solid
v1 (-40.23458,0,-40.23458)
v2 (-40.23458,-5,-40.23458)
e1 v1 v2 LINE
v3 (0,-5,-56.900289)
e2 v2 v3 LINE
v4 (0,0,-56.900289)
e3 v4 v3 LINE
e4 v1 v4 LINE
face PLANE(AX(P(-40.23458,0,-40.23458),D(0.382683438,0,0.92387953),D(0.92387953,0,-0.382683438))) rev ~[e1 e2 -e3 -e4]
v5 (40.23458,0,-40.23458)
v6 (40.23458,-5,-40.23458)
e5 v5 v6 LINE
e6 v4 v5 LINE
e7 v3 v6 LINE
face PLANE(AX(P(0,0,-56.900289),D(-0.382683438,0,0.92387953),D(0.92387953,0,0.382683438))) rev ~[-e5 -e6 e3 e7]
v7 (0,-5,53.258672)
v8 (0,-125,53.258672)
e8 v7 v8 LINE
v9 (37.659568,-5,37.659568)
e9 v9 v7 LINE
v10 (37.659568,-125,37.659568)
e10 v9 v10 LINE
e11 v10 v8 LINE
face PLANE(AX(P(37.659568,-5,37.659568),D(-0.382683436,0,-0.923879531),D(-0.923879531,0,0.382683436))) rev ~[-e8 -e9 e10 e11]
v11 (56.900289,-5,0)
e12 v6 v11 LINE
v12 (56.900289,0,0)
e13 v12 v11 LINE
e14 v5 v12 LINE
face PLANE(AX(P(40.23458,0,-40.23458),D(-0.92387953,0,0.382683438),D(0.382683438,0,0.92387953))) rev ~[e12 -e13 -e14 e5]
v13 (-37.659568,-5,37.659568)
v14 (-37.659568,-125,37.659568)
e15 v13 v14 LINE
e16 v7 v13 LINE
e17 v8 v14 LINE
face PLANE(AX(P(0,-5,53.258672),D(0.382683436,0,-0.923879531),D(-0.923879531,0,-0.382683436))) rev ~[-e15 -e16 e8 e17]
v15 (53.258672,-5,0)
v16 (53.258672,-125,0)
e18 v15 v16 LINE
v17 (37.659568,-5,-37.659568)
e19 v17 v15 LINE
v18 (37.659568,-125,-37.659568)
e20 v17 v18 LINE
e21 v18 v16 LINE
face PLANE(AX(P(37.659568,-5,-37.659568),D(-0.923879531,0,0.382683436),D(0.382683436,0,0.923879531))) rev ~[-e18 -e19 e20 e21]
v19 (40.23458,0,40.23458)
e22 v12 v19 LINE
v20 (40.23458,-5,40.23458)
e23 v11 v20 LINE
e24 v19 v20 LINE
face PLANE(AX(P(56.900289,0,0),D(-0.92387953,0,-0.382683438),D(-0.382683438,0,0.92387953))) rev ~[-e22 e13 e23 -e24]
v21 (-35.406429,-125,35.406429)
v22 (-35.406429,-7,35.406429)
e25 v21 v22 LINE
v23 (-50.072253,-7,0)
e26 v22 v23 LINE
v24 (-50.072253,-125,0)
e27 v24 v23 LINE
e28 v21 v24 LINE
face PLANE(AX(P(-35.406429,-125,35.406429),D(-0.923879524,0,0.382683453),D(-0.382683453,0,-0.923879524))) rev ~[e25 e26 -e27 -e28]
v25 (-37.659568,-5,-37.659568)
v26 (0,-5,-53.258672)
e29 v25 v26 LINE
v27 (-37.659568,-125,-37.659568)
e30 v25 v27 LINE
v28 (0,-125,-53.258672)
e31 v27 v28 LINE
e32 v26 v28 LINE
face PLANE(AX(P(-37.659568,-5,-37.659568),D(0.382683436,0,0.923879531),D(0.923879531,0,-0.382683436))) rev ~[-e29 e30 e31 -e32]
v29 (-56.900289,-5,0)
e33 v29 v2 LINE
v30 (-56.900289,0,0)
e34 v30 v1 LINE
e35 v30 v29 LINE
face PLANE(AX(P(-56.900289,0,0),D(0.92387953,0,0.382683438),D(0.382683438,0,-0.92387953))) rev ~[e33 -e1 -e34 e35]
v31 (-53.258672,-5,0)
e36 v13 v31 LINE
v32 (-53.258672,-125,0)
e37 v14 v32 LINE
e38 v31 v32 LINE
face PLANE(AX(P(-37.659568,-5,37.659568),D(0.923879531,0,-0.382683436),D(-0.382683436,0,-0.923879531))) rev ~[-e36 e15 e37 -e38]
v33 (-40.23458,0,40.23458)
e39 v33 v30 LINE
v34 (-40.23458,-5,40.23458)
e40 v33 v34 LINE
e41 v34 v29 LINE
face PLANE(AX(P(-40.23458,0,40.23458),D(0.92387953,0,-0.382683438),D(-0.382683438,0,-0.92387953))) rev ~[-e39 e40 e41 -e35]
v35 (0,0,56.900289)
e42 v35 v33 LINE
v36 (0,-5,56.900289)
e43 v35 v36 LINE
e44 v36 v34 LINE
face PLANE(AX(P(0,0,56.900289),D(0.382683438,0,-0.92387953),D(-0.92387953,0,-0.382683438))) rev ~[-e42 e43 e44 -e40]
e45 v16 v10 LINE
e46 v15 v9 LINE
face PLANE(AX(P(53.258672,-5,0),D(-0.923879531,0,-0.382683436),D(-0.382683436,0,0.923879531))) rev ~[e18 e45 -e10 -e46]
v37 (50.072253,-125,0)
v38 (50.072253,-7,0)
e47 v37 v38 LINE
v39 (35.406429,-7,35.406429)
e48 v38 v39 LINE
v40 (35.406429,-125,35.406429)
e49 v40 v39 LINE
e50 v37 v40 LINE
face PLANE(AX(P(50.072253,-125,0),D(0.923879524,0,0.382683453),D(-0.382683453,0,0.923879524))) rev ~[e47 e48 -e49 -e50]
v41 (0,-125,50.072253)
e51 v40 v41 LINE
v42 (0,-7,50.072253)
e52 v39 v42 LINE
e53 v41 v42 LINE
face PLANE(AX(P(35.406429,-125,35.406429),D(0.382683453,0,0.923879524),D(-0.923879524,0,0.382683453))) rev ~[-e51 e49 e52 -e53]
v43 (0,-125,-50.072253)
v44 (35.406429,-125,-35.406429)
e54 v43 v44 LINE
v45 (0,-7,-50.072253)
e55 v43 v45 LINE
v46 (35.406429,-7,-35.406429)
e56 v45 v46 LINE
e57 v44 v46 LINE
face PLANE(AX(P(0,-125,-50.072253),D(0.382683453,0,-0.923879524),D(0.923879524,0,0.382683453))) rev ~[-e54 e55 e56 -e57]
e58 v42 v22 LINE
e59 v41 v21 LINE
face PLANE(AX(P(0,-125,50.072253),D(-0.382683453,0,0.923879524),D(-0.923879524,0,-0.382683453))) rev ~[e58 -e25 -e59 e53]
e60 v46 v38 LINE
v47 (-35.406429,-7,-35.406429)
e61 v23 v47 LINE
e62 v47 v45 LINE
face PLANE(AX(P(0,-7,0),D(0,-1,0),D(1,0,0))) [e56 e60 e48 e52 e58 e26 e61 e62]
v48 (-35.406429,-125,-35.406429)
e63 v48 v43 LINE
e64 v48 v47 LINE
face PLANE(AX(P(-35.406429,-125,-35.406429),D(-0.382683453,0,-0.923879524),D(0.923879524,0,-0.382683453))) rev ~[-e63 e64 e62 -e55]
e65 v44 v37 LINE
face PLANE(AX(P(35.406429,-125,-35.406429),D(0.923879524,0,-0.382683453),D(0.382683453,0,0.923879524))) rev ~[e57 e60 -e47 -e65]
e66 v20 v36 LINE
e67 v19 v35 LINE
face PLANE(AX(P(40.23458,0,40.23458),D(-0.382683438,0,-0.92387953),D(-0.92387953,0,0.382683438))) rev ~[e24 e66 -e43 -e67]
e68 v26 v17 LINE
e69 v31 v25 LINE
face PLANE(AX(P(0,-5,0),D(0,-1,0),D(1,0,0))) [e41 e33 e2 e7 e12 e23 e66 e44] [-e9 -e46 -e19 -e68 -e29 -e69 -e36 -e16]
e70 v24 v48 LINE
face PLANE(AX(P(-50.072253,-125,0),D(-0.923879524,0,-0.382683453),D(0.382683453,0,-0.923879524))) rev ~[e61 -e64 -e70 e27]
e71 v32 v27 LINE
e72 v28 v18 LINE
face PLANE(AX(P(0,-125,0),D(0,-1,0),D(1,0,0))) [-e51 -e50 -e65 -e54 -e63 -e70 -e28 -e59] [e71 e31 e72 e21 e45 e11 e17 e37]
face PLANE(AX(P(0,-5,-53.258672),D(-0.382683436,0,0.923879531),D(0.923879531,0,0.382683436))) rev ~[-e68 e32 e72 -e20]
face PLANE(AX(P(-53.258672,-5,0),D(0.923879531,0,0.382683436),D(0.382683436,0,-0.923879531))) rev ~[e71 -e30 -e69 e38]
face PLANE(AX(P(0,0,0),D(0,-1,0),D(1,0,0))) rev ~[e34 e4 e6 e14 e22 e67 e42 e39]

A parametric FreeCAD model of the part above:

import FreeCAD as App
import Part
import Sketcher
from FreeCAD import Vector
Q = App.Units.Quantity

doc = App.newDocument("Part")
body = doc.addObject("PartDesign::Body", "Body")

# Sketch on XZ plane
sketch1 = doc.addObject("Sketcher::SketchObject", "Sketch")
body.addObject(sketch1)
sketch1.AttachmentSupport = (doc.XZ_Plane, [""])
sketch1.MapMode = "FlatFace"
sketch1.addGeometry([
    Part.LineSegment(Vector(40.23458, -40.23458, 0), Vector(56.900289, 0, 0)),  # 0
    Part.LineSegment(Vector(56.900289, 0, 0), Vector(40.23458, 40.23458, 0)),  # 1
    Part.LineSegment(Vector(40.23458, 40.23458, 0), Vector(0, 56.900289, 0)),  # 2
    Part.LineSegment(Vector(0, 56.900289, 0), Vector(-40.23458, 40.23458, 0)),  # 3
    Part.LineSegment(Vector(-40.23458, 40.23458, 0), Vector(-56.900289, 0, 0)),  # 4
    Part.LineSegment(Vector(-56.900289, 0, 0), Vector(-40.23458, -40.23458, 0)),  # 5
    Part.LineSegment(Vector(-40.23458, -40.23458, 0), Vector(0, -56.900289, 0)),  # 6
    Part.LineSegment(Vector(0, -56.900289, 0), Vector(40.23458, -40.23458, 0)),  # 7
], False)
sketch1.addConstraint([
    Sketcher.Constraint("Coincident", 0, 2, 1, 1),
    Sketcher.Constraint("Coincident", 1, 2, 2, 1),
    Sketcher.Constraint("Coincident", 2, 2, 3, 1),
    Sketcher.Constraint("Coincident", 3, 2, 4, 1),
    Sketcher.Constraint("Coincident", 4, 2, 5, 1),
    Sketcher.Constraint("Coincident", 5, 2, 6, 1),
    Sketcher.Constraint("Coincident", 6, 2, 7, 1),
    Sketcher.Constraint("Coincident", 7, 2, 0, 1),
    Sketcher.Constraint("Symmetric", 0, 2, 4, 2, -1, 1),
    Sketcher.Constraint("Symmetric", 1, 2, 5, 2, -1, 1),
    Sketcher.Constraint("Symmetric", 2, 2, 6, 2, -1, 1),
    Sketcher.Constraint("Symmetric", 3, 2, 7, 2, -1, 1),
    Sketcher.Constraint("Symmetric", 1, 2, 3, 2, -2),
    Sketcher.Constraint("PointOnObject", 0, 2, -1),
    Sketcher.Constraint("PointOnObject", 2, 2, -2),
    Sketcher.Constraint("Perpendicular", 0, 2),
    Sketcher.Constraint("Equal", 1, 2),
    Sketcher.Constraint("Angle", 0, Q("67.5 deg")),
    Sketcher.Constraint("DistanceX", -1, 1, 0, 2, Q("56.900289 mm")),
])
pad1 = doc.addObject("PartDesign::Pad", "Pad")
body.addObject(pad1)
pad1.Profile = sketch1
pad1.Length = 5

# Sketch on XZ plane
sketch2 = doc.addObject("Sketcher::SketchObject", "Sketch001")
body.addObject(sketch2)
sketch2.AttachmentSupport = (doc.XZ_Plane, [""])
sketch2.MapMode = "FlatFace"
sketch2.AttachmentOffset = App.Placement(Vector(0, 0, 5), App.Rotation())
sketch2.addGeometry([
    Part.LineSegment(Vector(37.659568, -37.659568, 0), Vector(53.258672, 0, 0)),  # 0
    Part.LineSegment(Vector(53.258672, 0, 0), Vector(37.659568, 37.659568, 0)),  # 1
    Part.LineSegment(Vector(37.659568, 37.659568, 0), Vector(0, 53.258672, 0)),  # 2
    Part.LineSegment(Vector(0, 53.258672, 0), Vector(-37.659568, 37.659568, 0)),  # 3
    Part.LineSegment(Vector(-37.659568, 37.659568, 0), Vector(-53.258672, 0, 0)),  # 4
    Part.LineSegment(Vector(-53.258672, 0, 0), Vector(-37.659568, -37.659568, 0)),  # 5
    Part.LineSegment(Vector(-37.659568, -37.659568, 0), Vector(0, -53.258672, 0)),  # 6
    Part.LineSegment(Vector(0, -53.258672, 0), Vector(37.659568, -37.659568, 0)),  # 7
], False)
sketch2.addConstraint([
    Sketcher.Constraint("Coincident", 0, 2, 1, 1),
    Sketcher.Constraint("Coincident", 1, 2, 2, 1),
    Sketcher.Constraint("Coincident", 2, 2, 3, 1),
    Sketcher.Constraint("Coincident", 3, 2, 4, 1),
    Sketcher.Constraint("Coincident", 4, 2, 5, 1),
    Sketcher.Constraint("Coincident", 5, 2, 6, 1),
    Sketcher.Constraint("Coincident", 6, 2, 7, 1),
    Sketcher.Constraint("Coincident", 7, 2, 0, 1),
    Sketcher.Constraint("Symmetric", 0, 2, 4, 2, -1, 1),
    Sketcher.Constraint("Symmetric", 1, 2, 5, 2, -1, 1),
    Sketcher.Constraint("Symmetric", 2, 2, 6, 2, -1, 1),
    Sketcher.Constraint("Symmetric", 3, 2, 7, 2, -1, 1),
    Sketcher.Constraint("Symmetric", 1, 2, 3, 2, -2),
    Sketcher.Constraint("PointOnObject", 0, 2, -1),
    Sketcher.Constraint("PointOnObject", 2, 2, -2),
    Sketcher.Constraint("Perpendicular", 0, 2),
    Sketcher.Constraint("Equal", 1, 2),
    Sketcher.Constraint("Angle", 0, Q("67.5 deg")),
    Sketcher.Constraint("DistanceX", -1, 1, 0, 2, Q("53.258672 mm")),
])
pad2 = doc.addObject("PartDesign::Pad", "Pad001")
body.addObject(pad2)
pad2.Profile = sketch2
pad2.Length = 120

# Sketch on XZ plane
sketch3 = doc.addObject("Sketcher::SketchObject", "Sketch002")
body.addObject(sketch3)
sketch3.AttachmentSupport = (doc.XZ_Plane, [""])
sketch3.MapMode = "FlatFace"
sketch3.AttachmentOffset = App.Placement(Vector(0, 0, 125), App.Rotation())
sketch3.addGeometry([
    Part.LineSegment(Vector(35.406429, -35.406429, 0), Vector(50.072253, 0, 0)),  # 0
    Part.LineSegment(Vector(50.072253, 0, 0), Vector(35.406429, 35.406429, 0)),  # 1
    Part.LineSegment(Vector(35.406429, 35.406429, 0), Vector(0, 50.072253, 0)),  # 2
    Part.LineSegment(Vector(0, 50.072253, 0), Vector(-35.406429, 35.406429, 0)),  # 3
    Part.LineSegment(Vector(-35.406429, 35.406429, 0), Vector(-50.072253, 0, 0)),  # 4
    Part.LineSegment(Vector(-50.072253, 0, 0), Vector(-35.406429, -35.406429, 0)),  # 5
    Part.LineSegment(Vector(-35.406429, -35.406429, 0), Vector(0, -50.072253, 0)),  # 6
    Part.LineSegment(Vector(0, -50.072253, 0), Vector(35.406429, -35.406429, 0)),  # 7
], False)
sketch3.addConstraint([
    Sketcher.Constraint("Coincident", 0, 2, 1, 1),
    Sketcher.Constraint("Coincident", 1, 2, 2, 1),
    Sketcher.Constraint("Coincident", 2, 2, 3, 1),
    Sketcher.Constraint("Coincident", 3, 2, 4, 1),
    Sketcher.Constraint("Coincident", 4, 2, 5, 1),
    Sketcher.Constraint("Coincident", 5, 2, 6, 1),
    Sketcher.Constraint("Coincident", 6, 2, 7, 1),
    Sketcher.Constraint("Coincident", 7, 2, 0, 1),
    Sketcher.Constraint("Symmetric", 0, 2, 4, 2, -1, 1),
    Sketcher.Constraint("Symmetric", 1, 2, 5, 2, -1, 1),
    Sketcher.Constraint("Symmetric", 2, 2, 6, 2, -1, 1),
    Sketcher.Constraint("Symmetric", 3, 2, 7, 2, -1, 1),
    Sketcher.Constraint("Symmetric", 1, 2, 3, 2, -2),
    Sketcher.Constraint("PointOnObject", 0, 2, -1),
    Sketcher.Constraint("PointOnObject", 2, 2, -2),
    Sketcher.Constraint("Perpendicular", 0, 2),
    Sketcher.Constraint("Equal", 1, 2),
    Sketcher.Constraint("Angle", 0, Q("67.499999 deg")),
    Sketcher.Constraint("DistanceX", -1, 1, 1, 2, Q("35.406429 mm")),
])
pocket1 = doc.addObject("PartDesign::Pocket", "Pocket")
body.addObject(pocket1)
pocket1.Profile = sketch3
pocket1.Length = 118

doc.recompute()
